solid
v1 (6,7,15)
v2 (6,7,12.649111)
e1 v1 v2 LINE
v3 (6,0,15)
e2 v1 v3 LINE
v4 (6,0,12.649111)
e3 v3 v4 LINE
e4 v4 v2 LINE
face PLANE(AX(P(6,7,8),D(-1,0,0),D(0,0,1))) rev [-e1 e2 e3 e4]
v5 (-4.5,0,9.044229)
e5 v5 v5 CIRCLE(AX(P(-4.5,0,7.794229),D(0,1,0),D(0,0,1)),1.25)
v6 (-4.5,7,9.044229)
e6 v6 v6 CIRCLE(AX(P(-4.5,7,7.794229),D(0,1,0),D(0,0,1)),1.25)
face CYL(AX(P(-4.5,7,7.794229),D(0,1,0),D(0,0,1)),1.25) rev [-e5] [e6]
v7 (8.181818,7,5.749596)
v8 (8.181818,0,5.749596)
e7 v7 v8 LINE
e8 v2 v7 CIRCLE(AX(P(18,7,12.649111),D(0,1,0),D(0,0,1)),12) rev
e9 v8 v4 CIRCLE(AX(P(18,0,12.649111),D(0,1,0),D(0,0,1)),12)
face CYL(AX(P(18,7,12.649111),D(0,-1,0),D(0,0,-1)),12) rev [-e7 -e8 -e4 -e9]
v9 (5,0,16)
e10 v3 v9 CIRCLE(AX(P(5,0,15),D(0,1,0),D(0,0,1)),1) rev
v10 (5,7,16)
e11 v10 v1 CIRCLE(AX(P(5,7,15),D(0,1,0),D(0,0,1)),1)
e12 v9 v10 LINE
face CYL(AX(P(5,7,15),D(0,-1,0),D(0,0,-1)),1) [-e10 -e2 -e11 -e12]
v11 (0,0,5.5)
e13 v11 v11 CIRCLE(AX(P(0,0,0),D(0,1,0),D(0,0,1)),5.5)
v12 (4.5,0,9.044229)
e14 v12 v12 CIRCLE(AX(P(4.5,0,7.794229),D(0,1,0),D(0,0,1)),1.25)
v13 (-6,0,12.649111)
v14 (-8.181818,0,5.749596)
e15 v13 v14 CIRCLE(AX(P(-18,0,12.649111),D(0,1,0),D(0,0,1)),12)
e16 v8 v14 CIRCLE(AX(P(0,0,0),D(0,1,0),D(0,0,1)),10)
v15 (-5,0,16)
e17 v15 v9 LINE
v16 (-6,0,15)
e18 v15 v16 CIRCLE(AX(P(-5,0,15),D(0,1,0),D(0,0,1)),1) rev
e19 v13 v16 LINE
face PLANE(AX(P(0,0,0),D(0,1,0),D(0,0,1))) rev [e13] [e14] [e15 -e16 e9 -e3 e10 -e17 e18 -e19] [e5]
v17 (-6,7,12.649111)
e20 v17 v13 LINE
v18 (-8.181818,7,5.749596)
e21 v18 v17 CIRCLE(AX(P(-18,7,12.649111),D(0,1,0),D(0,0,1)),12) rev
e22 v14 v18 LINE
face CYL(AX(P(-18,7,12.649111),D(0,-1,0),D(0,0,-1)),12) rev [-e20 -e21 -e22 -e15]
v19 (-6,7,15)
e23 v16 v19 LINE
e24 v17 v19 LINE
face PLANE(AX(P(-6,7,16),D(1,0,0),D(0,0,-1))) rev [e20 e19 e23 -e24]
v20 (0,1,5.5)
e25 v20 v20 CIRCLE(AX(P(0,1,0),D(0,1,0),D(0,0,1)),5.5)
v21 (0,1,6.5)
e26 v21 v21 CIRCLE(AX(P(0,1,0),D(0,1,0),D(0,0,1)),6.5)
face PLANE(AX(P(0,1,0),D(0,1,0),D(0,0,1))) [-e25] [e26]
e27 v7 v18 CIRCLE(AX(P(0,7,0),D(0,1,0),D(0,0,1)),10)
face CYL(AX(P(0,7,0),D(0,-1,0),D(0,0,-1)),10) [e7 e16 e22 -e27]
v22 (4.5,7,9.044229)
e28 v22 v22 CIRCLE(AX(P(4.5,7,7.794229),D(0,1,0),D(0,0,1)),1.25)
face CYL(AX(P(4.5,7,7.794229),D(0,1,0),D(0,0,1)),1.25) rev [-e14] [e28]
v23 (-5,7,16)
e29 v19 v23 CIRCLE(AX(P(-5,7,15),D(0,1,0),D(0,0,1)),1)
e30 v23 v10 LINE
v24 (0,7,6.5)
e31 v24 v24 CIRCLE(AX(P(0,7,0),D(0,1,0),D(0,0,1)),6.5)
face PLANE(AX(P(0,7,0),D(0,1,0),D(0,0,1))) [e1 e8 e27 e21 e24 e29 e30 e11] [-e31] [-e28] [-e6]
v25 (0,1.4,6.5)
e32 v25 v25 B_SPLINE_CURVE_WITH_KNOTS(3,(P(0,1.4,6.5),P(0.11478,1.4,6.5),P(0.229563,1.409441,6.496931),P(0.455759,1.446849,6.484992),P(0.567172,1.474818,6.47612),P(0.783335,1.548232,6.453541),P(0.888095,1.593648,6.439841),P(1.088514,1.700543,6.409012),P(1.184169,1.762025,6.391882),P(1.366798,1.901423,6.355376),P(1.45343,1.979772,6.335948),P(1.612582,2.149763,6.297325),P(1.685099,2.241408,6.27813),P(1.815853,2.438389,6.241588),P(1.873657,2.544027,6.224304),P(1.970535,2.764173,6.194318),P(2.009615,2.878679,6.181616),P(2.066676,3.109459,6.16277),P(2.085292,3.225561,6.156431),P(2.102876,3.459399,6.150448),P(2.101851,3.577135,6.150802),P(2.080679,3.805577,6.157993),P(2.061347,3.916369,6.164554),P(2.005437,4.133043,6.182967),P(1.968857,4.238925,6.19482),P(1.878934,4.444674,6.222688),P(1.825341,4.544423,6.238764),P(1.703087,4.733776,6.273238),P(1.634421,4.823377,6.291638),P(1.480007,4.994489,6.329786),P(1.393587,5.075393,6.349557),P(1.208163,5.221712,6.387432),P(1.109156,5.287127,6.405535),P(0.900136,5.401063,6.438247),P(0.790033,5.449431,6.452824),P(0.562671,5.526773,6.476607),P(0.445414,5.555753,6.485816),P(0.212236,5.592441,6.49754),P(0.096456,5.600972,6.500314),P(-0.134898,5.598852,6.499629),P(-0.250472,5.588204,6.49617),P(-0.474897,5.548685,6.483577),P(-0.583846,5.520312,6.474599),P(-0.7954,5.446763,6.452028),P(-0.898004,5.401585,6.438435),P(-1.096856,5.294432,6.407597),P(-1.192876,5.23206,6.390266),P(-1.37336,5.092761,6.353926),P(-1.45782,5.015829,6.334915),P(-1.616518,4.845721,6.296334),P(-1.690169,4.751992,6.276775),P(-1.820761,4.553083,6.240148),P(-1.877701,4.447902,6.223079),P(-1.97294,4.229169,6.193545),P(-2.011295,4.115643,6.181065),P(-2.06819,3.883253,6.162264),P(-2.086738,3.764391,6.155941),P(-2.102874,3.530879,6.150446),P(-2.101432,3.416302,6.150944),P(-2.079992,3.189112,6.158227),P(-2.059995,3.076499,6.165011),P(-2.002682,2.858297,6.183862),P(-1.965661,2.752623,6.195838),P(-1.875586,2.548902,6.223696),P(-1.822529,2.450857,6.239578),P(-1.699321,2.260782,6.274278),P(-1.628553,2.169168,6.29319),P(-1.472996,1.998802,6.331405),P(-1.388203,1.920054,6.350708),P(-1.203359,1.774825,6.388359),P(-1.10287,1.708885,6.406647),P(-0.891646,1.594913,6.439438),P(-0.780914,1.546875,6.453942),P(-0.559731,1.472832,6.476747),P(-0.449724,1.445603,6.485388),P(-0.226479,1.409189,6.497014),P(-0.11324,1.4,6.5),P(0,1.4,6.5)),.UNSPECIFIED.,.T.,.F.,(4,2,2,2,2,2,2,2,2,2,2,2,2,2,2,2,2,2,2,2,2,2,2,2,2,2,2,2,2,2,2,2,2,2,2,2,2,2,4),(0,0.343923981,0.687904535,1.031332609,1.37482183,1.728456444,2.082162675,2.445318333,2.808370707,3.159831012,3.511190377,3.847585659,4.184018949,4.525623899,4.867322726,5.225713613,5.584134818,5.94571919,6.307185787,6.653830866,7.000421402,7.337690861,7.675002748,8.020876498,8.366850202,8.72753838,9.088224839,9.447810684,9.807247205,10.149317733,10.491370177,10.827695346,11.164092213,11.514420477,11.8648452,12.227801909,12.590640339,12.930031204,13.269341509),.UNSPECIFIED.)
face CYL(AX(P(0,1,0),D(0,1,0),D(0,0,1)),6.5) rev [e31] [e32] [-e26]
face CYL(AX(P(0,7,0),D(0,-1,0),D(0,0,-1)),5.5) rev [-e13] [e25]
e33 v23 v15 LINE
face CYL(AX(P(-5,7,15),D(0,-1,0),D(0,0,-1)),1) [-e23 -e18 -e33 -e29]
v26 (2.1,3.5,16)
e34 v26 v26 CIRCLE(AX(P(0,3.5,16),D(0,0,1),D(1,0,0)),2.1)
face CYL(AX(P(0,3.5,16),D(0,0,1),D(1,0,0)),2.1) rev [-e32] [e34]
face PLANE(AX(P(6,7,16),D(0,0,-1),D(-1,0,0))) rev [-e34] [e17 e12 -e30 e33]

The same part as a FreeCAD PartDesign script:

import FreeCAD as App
import Part
import Sketcher
Q = App.Units.Quantity


def edges_at(feature, points):
    """Names of the edges that pass closest to the given points."""
    edges = feature.Shape.Edges
    near = lambda p: min(range(len(edges)), key=lambda i: edges[i].distToShape(Part.Vertex(*p))[0])
    return sorted({f"Edge{near(p) + 1}" for p in points})

doc = App.newDocument("Part")
body = doc.addObject("PartDesign::Body", "Body")

# Sketch on XZ plane
sketch1 = body.newObject("Sketcher::SketchObject", "Sketch")
sketch1.AttachmentSupport = (doc.getObject("XZ_Plane"), [""])
sketch1.MapMode = "FlatFace"
sketch1.addGeometry([
    Part.Circle(App.Vector(0, 0, 0), App.Vector(0, 0, 1), 10),
    Part.Circle(App.Vector(0, 0, 0), App.Vector(0, 0, 1), 6),
], False)
sketch1.addConstraint([
    Sketcher.Constraint("Coincident", 0, 3, -1, 1),
    Sketcher.Constraint("Coincident", 1, 3, -1, 1),
    Sketcher.Constraint("Diameter", 0, Q("20 mm")),
    Sketcher.Constraint("Diameter", 1, Q("11 mm")),
])
pad1 = body.newObject("PartDesign::Pad", "Pad")
pad1.Profile = sketch1
pad1.Length = 7
pad1.Reversed = True

# Sketch on XZ plane
sketch2 = body.newObject("Sketcher::SketchObject", "Sketch001")
sketch2.AttachmentSupport = (doc.getObject("XZ_Plane"), [""])
sketch2.MapMode = "FlatFace"
sketch2.AttachmentOffset = App.Placement(App.Vector(0, 0, -7), App.Rotation())
sketch2.addGeometry(Part.Circle(App.Vector(0, 0, 0), App.Vector(0, 0, 1), 6), False)
sketch2.addConstraint([
    Sketcher.Constraint("Coincident", 0, 3, -1, 1),
    Sketcher.Constraint("Diameter", 0, Q("13 mm")),
])
pocket1 = body.newObject("PartDesign::Pocket", "Pocket")
pocket1.Profile = sketch2
pocket1.Length = 6
pocket1.Reversed = True

# Sketch on XZ plane
sketch3 = body.newObject("Sketcher::SketchObject", "Sketch002")
sketch3.AttachmentSupport = (doc.getObject("XZ_Plane"), [""])
sketch3.MapMode = "FlatFace"
sketch3.addGeometry([
    Part.LineSegment(App.Vector(-6, 8, 0), App.Vector(-6, 16, 0)),
    Part.LineSegment(App.Vector(-6, 16, 0), App.Vector(6, 16, 0)),
    Part.LineSegment(App.Vector(6, 16, 0), App.Vector(6, 8, 0)),
    Part.LineSegment(App.Vector(6, 8, 0), App.Vector(-6, 8, 0)),
], False)
sketch3.addConstraint([
    Sketcher.Constraint("Coincident", 0, 2, 1, 1),
    Sketcher.Constraint("Coincident", 1, 2, 2, 1),
    Sketcher.Constraint("Coincident", 2, 2, 3, 1),
    Sketcher.Constraint("Coincident", 3, 2, 0, 1),
    Sketcher.Constraint("Vertical", 0),
    Sketcher.Constraint("Horizontal", 1),
    Sketcher.Constraint("Vertical", 2),
    Sketcher.Constraint("Horizontal", 3),
    Sketcher.Constraint("DistanceX", 1, 1, 1, 2, Q("12 mm")),
    Sketcher.Constraint("DistanceY", 0, 1, 0, 2, Q("8 mm")),
    Sketcher.Constraint("DistanceX", 0, 2, -1, 1, Q("6 mm")),
    Sketcher.Constraint("DistanceY", -1, 1, 0, 2, Q("16 mm")),
])
pad2 = body.newObject("PartDesign::Pad", "Pad001")
pad2.Profile = sketch3
pad2.Length = 7
pad2.Reversed = True
doc.recompute()

fillet = body.newObject("PartDesign::Fillet", "Fillet")
fillet.Base = (pad2, edges_at(pad2, [(-6, 3.5, 8), (6, 3.5, 8)]))
fillet.Radius = 12

# Sketch on XZ plane
sketch4 = body.newObject("Sketcher::SketchObject", "Sketch003")
sketch4.AttachmentSupport = (doc.getObject("XZ_Plane"), [""])
sketch4.MapMode = "FlatFace"
sketch4.AttachmentOffset = App.Placement(App.Vector(0, 0, -7), App.Rotation())
sketch4.addGeometry([
    Part.Circle(App.Vector(4.5, 7.8, 0), App.Vector(0, 0, 1), 1.2),
    Part.Circle(App.Vector(-4.5, 7.8, 0), App.Vector(0, 0, 1), 1.2),
], False)
sketch4.addConstraint([
    Sketcher.Constraint("Equal", 0, 1),
    Sketcher.Constraint("Symmetric", 0, 3, 1, 3, -2),
    Sketcher.Constraint("Diameter", 0, Q("2.5 mm")),
    Sketcher.Constraint("DistanceX", 1, 3, 0, 3, Q("9 mm")),
    Sketcher.Constraint("DistanceY", -1, 1, 0, 3, Q("7.794229 mm")),
])
doc.recompute()
hole = body.newObject("PartDesign::Hole", "Hole")
hole.Profile = sketch4
hole.ThreadType = "None"
hole.Diameter = 2.5
hole.DepthType = "ThroughAll"
hole.Reversed = True

# Sketch on XY plane
sketch5 = body.newObject("Sketcher::SketchObject", "Sketch004")
sketch5.AttachmentSupport = (doc.getObject("XY_Plane"), [""])
sketch5.MapMode = "FlatFace"
sketch5.AttachmentOffset = App.Placement(App.Vector(0, 0, 16), App.Rotation())
sketch5.addGeometry(Part.Circle(App.Vector(0, 3.5, 0), App.Vector(0, 0, 1), 2.1), False)
sketch5.addConstraint([
    Sketcher.Constraint("PointOnObject", 0, 3, -2),
    Sketcher.Constraint("Diameter", 0, Q("4.2 mm")),
    Sketcher.Constraint("DistanceY", -1, 1, 0, 3, Q("3.5 mm")),
])
doc.recompute()
hole2 = body.newObject("PartDesign::Hole", "Hole001")
hole2.Profile = sketch5
hole2.ThreadType = "None"
hole2.Diameter = 4.2
hole2.DepthType = "Dimension"
hole2.Depth = 16
hole2.DrillPoint = "Angled"
hole2.DrillPointAngle = 118
doc.recompute()

fillet2 = body.newObject("PartDesign::Fillet", "Fillet001")
fillet2.Base = (hole2, edges_at(hole2, [(-6, 3.5, 16), (6, 3.5, 16)]))
fillet2.Radius = 1

doc.recompute()
